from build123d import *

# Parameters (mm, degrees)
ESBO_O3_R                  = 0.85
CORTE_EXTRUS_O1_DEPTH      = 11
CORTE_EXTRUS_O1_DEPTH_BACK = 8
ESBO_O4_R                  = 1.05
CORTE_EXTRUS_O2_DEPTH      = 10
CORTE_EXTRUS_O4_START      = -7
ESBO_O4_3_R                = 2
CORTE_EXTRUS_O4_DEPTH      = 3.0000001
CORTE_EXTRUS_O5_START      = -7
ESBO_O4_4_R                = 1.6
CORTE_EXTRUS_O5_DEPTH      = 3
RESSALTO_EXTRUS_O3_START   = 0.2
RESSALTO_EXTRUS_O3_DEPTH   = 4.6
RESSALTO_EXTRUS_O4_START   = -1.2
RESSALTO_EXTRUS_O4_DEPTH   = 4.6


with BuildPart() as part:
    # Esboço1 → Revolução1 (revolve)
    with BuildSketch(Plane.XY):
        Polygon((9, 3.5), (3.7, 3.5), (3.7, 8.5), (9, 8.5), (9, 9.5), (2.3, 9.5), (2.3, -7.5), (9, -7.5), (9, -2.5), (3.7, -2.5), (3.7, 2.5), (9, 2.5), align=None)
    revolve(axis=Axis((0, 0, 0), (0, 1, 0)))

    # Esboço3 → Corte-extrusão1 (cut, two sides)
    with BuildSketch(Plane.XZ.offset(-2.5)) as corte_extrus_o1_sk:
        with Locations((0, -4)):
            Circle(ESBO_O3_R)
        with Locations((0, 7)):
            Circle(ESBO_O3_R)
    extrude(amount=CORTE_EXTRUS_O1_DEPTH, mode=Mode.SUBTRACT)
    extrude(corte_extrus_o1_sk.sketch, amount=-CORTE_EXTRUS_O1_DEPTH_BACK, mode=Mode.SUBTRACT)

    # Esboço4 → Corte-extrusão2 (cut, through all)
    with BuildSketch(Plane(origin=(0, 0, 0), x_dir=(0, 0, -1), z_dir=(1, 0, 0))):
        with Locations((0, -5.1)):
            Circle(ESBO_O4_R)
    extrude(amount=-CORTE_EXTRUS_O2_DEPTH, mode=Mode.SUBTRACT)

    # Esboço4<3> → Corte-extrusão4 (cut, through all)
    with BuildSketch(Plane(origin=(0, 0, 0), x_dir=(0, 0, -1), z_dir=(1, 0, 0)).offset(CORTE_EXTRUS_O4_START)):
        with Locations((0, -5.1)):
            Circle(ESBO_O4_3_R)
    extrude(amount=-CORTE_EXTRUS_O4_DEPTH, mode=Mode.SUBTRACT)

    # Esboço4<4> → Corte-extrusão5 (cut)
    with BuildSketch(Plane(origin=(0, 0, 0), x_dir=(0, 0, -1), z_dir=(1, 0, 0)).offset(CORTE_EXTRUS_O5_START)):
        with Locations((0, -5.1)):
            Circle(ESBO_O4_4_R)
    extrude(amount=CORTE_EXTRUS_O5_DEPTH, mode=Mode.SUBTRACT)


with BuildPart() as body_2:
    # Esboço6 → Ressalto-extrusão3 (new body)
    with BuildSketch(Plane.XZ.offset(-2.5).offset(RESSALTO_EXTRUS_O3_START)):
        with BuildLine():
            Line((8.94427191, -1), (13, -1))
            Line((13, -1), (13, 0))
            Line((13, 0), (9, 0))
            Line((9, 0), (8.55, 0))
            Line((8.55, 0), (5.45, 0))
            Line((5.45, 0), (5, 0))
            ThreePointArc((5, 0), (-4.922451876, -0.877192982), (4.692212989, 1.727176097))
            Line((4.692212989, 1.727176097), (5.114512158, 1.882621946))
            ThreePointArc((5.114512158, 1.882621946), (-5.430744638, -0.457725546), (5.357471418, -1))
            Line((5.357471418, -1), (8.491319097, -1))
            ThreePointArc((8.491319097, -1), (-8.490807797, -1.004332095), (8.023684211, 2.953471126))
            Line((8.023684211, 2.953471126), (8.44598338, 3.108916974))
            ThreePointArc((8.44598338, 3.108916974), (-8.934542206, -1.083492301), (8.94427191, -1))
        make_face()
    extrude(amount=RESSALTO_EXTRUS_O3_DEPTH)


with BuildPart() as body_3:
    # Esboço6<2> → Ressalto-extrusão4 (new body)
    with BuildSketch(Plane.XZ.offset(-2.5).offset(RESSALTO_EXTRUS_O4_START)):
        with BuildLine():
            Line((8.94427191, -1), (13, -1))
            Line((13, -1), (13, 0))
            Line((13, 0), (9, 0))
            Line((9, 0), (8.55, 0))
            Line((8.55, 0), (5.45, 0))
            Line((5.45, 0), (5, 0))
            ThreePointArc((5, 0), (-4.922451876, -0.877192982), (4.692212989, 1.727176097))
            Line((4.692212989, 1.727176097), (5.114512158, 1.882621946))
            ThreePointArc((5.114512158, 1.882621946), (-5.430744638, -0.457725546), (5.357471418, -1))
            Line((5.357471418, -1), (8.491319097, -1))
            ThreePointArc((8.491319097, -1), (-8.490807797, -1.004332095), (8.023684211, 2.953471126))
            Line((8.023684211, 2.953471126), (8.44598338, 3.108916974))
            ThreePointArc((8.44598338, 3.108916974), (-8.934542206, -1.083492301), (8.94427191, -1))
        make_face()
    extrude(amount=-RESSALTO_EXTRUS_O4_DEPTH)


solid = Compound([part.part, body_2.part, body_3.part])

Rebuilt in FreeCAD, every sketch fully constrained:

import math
import FreeCAD as App
import Part
import Sketcher

V = App.Vector
Q = App.Units.Quantity


def add_polygon(sketch, points):
    """Adds a closed chain of lines whose ends are joined by coincident constraints."""
    first, n = sketch.GeometryCount, len(points)
    for a, b in zip(points, points[1:] + points[:1]):
        sketch.addGeometry(Part.LineSegment(App.Vector(*a, 0), App.Vector(*b, 0)), False)
    for i in range(n):
        sketch.addConstraint(Sketcher.Constraint("Coincident", first + i, 2, first + (i + 1) % n, 1))

doc = App.newDocument("Part")
body = doc.addObject("PartDesign::Body", "Body")

sketch1 = body.newObject("Sketcher::SketchObject", "Sketch")
sketch1.AttachmentSupport = (doc.getObject("XY_Plane"), [""])
sketch1.MapMode = "FlatFace"
add_polygon(sketch1, [(9, 3.5), (3.7, 3.5), (3.7, 8.5), (9, 8.5), (9, 9.5), (2.3, 9.5), (2.3, -7.5), (9, -7.5), (9, -2.5), (3.7, -2.5), (3.7, 2.5), (9, 2.5)])
sketch1.addConstraint(Sketcher.Constraint("Horizontal", 0))
sketch1.addConstraint(Sketcher.Constraint("Vertical", 1))
sketch1.addConstraint(Sketcher.Constraint("Horizontal", 2))
sketch1.addConstraint(Sketcher.Constraint("Vertical", 3))
sketch1.addConstraint(Sketcher.Constraint("Horizontal", 4))
sketch1.addConstraint(Sketcher.Constraint("Vertical", 5))
sketch1.addConstraint(Sketcher.Constraint("Horizontal", 6))
sketch1.addConstraint(Sketcher.Constraint("Vertical", 7))
sketch1.addConstraint(Sketcher.Constraint("Horizontal", 8))
sketch1.addConstraint(Sketcher.Constraint("Vertical", 9))
sketch1.addConstraint(Sketcher.Constraint("Horizontal", 10))
sketch1.addConstraint(Sketcher.Constraint("Vertical", 11))
sketch1.addConstraint(Sketcher.Constraint("Symmetric", 7, 2, 10, 2, -1))
sketch1.addConstraint(Sketcher.Constraint("Vertical", 3, 2, 6, 2))
sketch1.addConstraint(Sketcher.Constraint("Vertical", 1, 2, 8, 2))
sketch1.addConstraint(Sketcher.Constraint("Equal", 1, 7))
sketch1.addConstraint(Sketcher.Constraint("Equal", 7, 9))
sketch1.addConstraint(Sketcher.Constraint("Equal", 3, 11))
sketch1.addConstraint(Sketcher.Constraint("DistanceY", 1, 1, 1, 2, Q("5 mm")))
sketch1.addConstraint(Sketcher.Constraint("DistanceY", 3, 1, 3, 2, Q("1 mm")))
sketch1.addConstraint(Sketcher.Constraint("DistanceX", 0, 2, 0, 1, Q("5.3 mm")))
sketch1.addConstraint(Sketcher.Constraint("DistanceX", 4, 2, 4, 1, Q("6.7 mm")))
sketch1.addConstraint(Sketcher.Constraint("DistanceX", -1, 1, 2, 2, Q("9 mm")))
revolution = body.newObject("PartDesign::Revolution", "Revolution")
revolution.Profile = sketch1
revolution.ReferenceAxis = (sketch1, ["V_Axis"])
revolution.Angle = 360

sketch2 = body.newObject("Sketcher::SketchObject", "Sketch001")
sketch2.AttachmentSupport = (doc.getObject("XZ_Plane"), [""])
sketch2.MapMode = "FlatFace"
sketch2.AttachmentOffset = App.Placement(V(0, 0, -2.5), App.Rotation())
sketch2.addGeometry(Part.Circle(V(0, -4, 0), V(0, 0, 1), 0.8), False)
sketch2.addGeometry(Part.Circle(V(0, 7, 0), V(0, 0, 1), 0.8), False)
sketch2.addConstraint(Sketcher.Constraint("Equal", 0, 1))
sketch2.addConstraint(Sketcher.Constraint("PointOnObject", 0, 3, -2))
sketch2.addConstraint(Sketcher.Constraint("PointOnObject", 1, 3, -2))
sketch2.addConstraint(Sketcher.Constraint("Diameter", 0, Q("1.7 mm")))
sketch2.addConstraint(Sketcher.Constraint("DistanceY", 0, 3, -1, 1, Q("4 mm")))
sketch2.addConstraint(Sketcher.Constraint("DistanceY", -1, 1, 1, 3, Q("7 mm")))
pocket1 = body.newObject("PartDesign::Pocket", "Pocket")
pocket1.Profile = sketch2
pocket1.Type = "ThroughAll"
pocket1.Midplane = True

sketch3 = body.newObject("Sketcher::SketchObject", "Sketch002")
sketch3.AttachmentSupport = (doc.getObject("YZ_Plane"), [""])
sketch3.MapMode = "FlatFace"
sketch3.addGeometry(Part.Circle(V(-5.1, 0, 0), V(0, 0, 1), 1.1), False)
sketch3.addConstraint(Sketcher.Constraint("PointOnObject", 0, 3, -1))
sketch3.addConstraint(Sketcher.Constraint("Diameter", 0, Q("2.1 mm")))
sketch3.addConstraint(Sketcher.Constraint("DistanceX", 0, 3, -1, 1, Q("5.1 mm")))
pocket2 = body.newObject("PartDesign::Pocket", "Pocket001")
pocket2.Profile = sketch3
pocket2.Type = "ThroughAll"

sketch4 = body.newObject("Sketcher::SketchObject", "Sketch003")
sketch4.AttachmentSupport = (doc.getObject("YZ_Plane"), [""])
sketch4.MapMode = "FlatFace"
sketch4.AttachmentOffset = App.Placement(V(0, 0, -7), App.Rotation())
sketch4.addGeometry(Part.Circle(V(-5.1, 0, 0), V(0, 0, 1), 2), False)
sketch4.addConstraint(Sketcher.Constraint("PointOnObject", 0, 3, -1))
sketch4.addConstraint(Sketcher.Constraint("Diameter", 0, Q("4 mm")))
sketch4.addConstraint(Sketcher.Constraint("DistanceX", 0, 3, -1, 1, Q("5.1 mm")))
pocket3 = body.newObject("PartDesign::Pocket", "Pocket002")
pocket3.Profile = sketch4
pocket3.Type = "ThroughAll"

sketch5 = body.newObject("Sketcher::SketchObject", "Sketch004")
sketch5.AttachmentSupport = (doc.getObject("YZ_Plane"), [""])
sketch5.MapMode = "FlatFace"
sketch5.AttachmentOffset = App.Placement(V(0, 0, -7), App.Rotation())
sketch5.addGeometry(Part.Circle(V(-5.1, 0, 0), V(0, 0, 1), 1.6), False)
sketch5.addConstraint(Sketcher.Constraint("PointOnObject", 0, 3, -1))
sketch5.addConstraint(Sketcher.Constraint("Diameter", 0, Q("3.2 mm")))
sketch5.addConstraint(Sketcher.Constraint("DistanceX", 0, 3, -1, 1, Q("5.1 mm")))
pocket4 = body.newObject("PartDesign::Pocket", "Pocket003")
pocket4.Profile = sketch5
pocket4.Length = 3
pocket4.Reversed = True
body2 = doc.addObject("PartDesign::Body", "Body001")

sketch6 = body2.newObject("Sketcher::SketchObject", "Sketch005")
sketch6.AttachmentSupport = (doc.getObject("XZ_Plane001"), [""])
sketch6.MapMode = "FlatFace"
sketch6.AttachmentOffset = App.Placement(V(0, 0, -2.3), App.Rotation())
sketch6.addGeometry(Part.LineSegment(V(8.94, -1, 0), V(13, -1, 0)), False)
sketch6.addGeometry(Part.LineSegment(V(13, -1, 0), V(13, 0, 0)), False)
sketch6.addGeometry(Part.LineSegment(V(13, 0, 0), V(5, 0, 0)), False)
sketch6.addGeometry(Part.ArcOfCircle(Part.Circle(V(0, 0, 0), V(0, 0, 1), 5), math.radians(20), math.radians(360)), False)
sketch6.addGeometry(Part.LineSegment(V(4.69, 1.73, 0), V(5.11, 1.88, 0)), False)
sketch6.addGeometry(Part.ArcOfCircle(Part.Circle(V(0, 0, 0), V(0, 0, 1), 5.45), math.radians(20), math.radians(349)), False)
sketch6.addGeometry(Part.LineSegment(V(5.36, -1, 0), V(8.49, -1, 0)), False)
sketch6.addGeometry(Part.ArcOfCircle(Part.Circle(V(0, 0, 0), V(0, 0, 1), 8.55), math.radians(20), math.radians(353)), False)
sketch6.addGeometry(Part.LineSegment(V(8.02, 2.95, 0), V(8.45, 3.11, 0)), False)
sketch6.addGeometry(Part.ArcOfCircle(Part.Circle(V(0, 0, 0), V(0, 0, 1), 9), math.radians(20), math.radians(354)), False)
sketch6.addConstraint(Sketcher.Constraint("Coincident", 0, 2, 1, 1))
sketch6.addConstraint(Sketcher.Constraint("Coincident", 1, 2, 2, 1))
sketch6.addConstraint(Sketcher.Constraint("Coincident", 2, 2, 3, 2))
sketch6.addConstraint(Sketcher.Constraint("Coincident", 3, 1, 4, 1))
sketch6.addConstraint(Sketcher.Constraint("Coincident", 4, 2, 5, 1))
sketch6.addConstraint(Sketcher.Constraint("Coincident", 5, 2, 6, 1))
sketch6.addConstraint(Sketcher.Constraint("Coincident", 6, 2, 7, 2))
sketch6.addConstraint(Sketcher.Constraint("Coincident", 7, 1, 8, 1))
sketch6.addConstraint(Sketcher.Constraint("Coincident", 8, 2, 9, 1))
sketch6.addConstraint(Sketcher.Constraint("Coincident", 9, 2, 0, 1))
sketch6.addConstraint(Sketcher.Constraint("Horizontal", 0))
sketch6.addConstraint(Sketcher.Constraint("Vertical", 1))
sketch6.addConstraint(Sketcher.Constraint("Horizontal", 2))
sketch6.addConstraint(Sketcher.Constraint("Horizontal", 6))
sketch6.addConstraint(Sketcher.Constraint("Coincident", 3, 3, -1, 1))
sketch6.addConstraint(Sketcher.Constraint("Coincident", 5, 3, -1, 1))
sketch6.addConstraint(Sketcher.Constraint("Coincident", 7, 3, -1, 1))
sketch6.addConstraint(Sketcher.Constraint("Coincident", 9, 3, -1, 1))
sketch6.addConstraint(Sketcher.Constraint("PointOnObject", 1, 2, -1))
sketch6.addConstraint(Sketcher.Constraint("Parallel", 4, 8))
sketch6.addConstraint(Sketcher.Constraint("Horizontal", 0, 2, 5, 2))
sketch6.addConstraint(Sketcher.Constraint("Equal", 4, 8))
sketch6.addConstraint(Sketcher.Constraint("Radius", 3, Q("5 mm")))
sketch6.addConstraint(Sketcher.Constraint("Radius", 9, Q("9 mm")))
sketch6.addConstraint(Sketcher.Constraint("DistanceX", 2, 2, 2, 1, Q("8 mm")))
sketch6.addConstraint(Sketcher.Constraint("DistanceY", 1, 1, 1, 2, Q("1 mm")))
sketch6.addConstraint(Sketcher.Constraint("Radius", 5, Q("5.45 mm")))
sketch6.addConstraint(Sketcher.Constraint("DistanceX", 3, 1, 4, 2, Q("0.422299 mm")))
sketch6.addConstraint(Sketcher.Constraint("DistanceY", -1, 1, 4, 2, Q("1.882622 mm")))
sketch6.addConstraint(Sketcher.Constraint("DistanceY", -1, 1, 7, 1, Q("2.953471 mm")))
pad1 = body2.newObject("PartDesign::Pad", "Pad")
pad1.Profile = sketch6
pad1.Length = 4.6
body3 = doc.addObject("PartDesign::Body", "Body002")

sketch7 = body3.newObject("Sketcher::SketchObject", "Sketch006")
sketch7.AttachmentSupport = (doc.getObject("XZ_Plane002"), [""])
sketch7.MapMode = "FlatFace"
sketch7.AttachmentOffset = App.Placement(V(0, 0, -3.7), App.Rotation())
sketch7.addGeometry(Part.LineSegment(V(8.94, -1, 0), V(13, -1, 0)), False)
sketch7.addGeometry(Part.LineSegment(V(13, -1, 0), V(13, 0, 0)), False)
sketch7.addGeometry(Part.LineSegment(V(13, 0, 0), V(5, 0, 0)), False)
sketch7.addGeometry(Part.ArcOfCircle(Part.Circle(V(0, 0, 0), V(0, 0, 1), 5), math.radians(20), math.radians(360)), False)
sketch7.addGeometry(Part.LineSegment(V(4.69, 1.73, 0), V(5.11, 1.88, 0)), False)
sketch7.addGeometry(Part.ArcOfCircle(Part.Circle(V(0, 0, 0), V(0, 0, 1), 5.45), math.radians(20), math.radians(349)), False)
sketch7.addGeometry(Part.LineSegment(V(5.36, -1, 0), V(8.49, -1, 0)), False)
sketch7.addGeometry(Part.ArcOfCircle(Part.Circle(V(0, 0, 0), V(0, 0, 1), 8.55), math.radians(20), math.radians(353)), False)
sketch7.addGeometry(Part.LineSegment(V(8.02, 2.95, 0), V(8.45, 3.11, 0)), False)
sketch7.addGeometry(Part.ArcOfCircle(Part.Circle(V(0, 0, 0), V(0, 0, 1), 9), math.radians(20), math.radians(354)), False)
sketch7.addConstraint(Sketcher.Constraint("Coincident", 0, 2, 1, 1))
sketch7.addConstraint(Sketcher.Constraint("Coincident", 1, 2, 2, 1))
sketch7.addConstraint(Sketcher.Constraint("Coincident", 2, 2, 3, 2))
sketch7.addConstraint(Sketcher.Constraint("Coincident", 3, 1, 4, 1))
sketch7.addConstraint(Sketcher.Constraint("Coincident", 4, 2, 5, 1))
sketch7.addConstraint(Sketcher.Constraint("Coincident", 5, 2, 6, 1))
sketch7.addConstraint(Sketcher.Constraint("Coincident", 6, 2, 7, 2))
sketch7.addConstraint(Sketcher.Constraint("Coincident", 7, 1, 8, 1))
sketch7.addConstraint(Sketcher.Constraint("Coincident", 8, 2, 9, 1))
sketch7.addConstraint(Sketcher.Constraint("Coincident", 9, 2, 0, 1))
sketch7.addConstraint(Sketcher.Constraint("Horizontal", 0))
sketch7.addConstraint(Sketcher.Constraint("Vertical", 1))
sketch7.addConstraint(Sketcher.Constraint("Horizontal", 2))
sketch7.addConstraint(Sketcher.Constraint("Horizontal", 6))
sketch7.addConstraint(Sketcher.Constraint("Coincident", 3, 3, -1, 1))
sketch7.addConstraint(Sketcher.Constraint("Coincident", 5, 3, -1, 1))
sketch7.addConstraint(Sketcher.Constraint("Coincident", 7, 3, -1, 1))
sketch7.addConstraint(Sketcher.Constraint("Coincident", 9, 3, -1, 1))
sketch7.addConstraint(Sketcher.Constraint("PointOnObject", 1, 2, -1))
sketch7.addConstraint(Sketcher.Constraint("Parallel", 4, 8))
sketch7.addConstraint(Sketcher.Constraint("Horizontal", 0, 2, 5, 2))
sketch7.addConstraint(Sketcher.Constraint("Equal", 4, 8))
sketch7.addConstraint(Sketcher.Constraint("Radius", 3, Q("5 mm")))
sketch7.addConstraint(Sketcher.Constraint("Radius", 9, Q("9 mm")))
sketch7.addConstraint(Sketcher.Constraint("DistanceX", 2, 2, 2, 1, Q("8 mm")))
sketch7.addConstraint(Sketcher.Constraint("DistanceY", 1, 1, 1, 2, Q("1 mm")))
sketch7.addConstraint(Sketcher.Constraint("Radius", 5, Q("5.45 mm")))
sketch7.addConstraint(Sketcher.Constraint("DistanceX", 3, 1, 4, 2, Q("0.422299 mm")))
sketch7.addConstraint(Sketcher.Constraint("DistanceY", -1, 1, 4, 2, Q("1.882622 mm")))
sketch7.addConstraint(Sketcher.Constraint("DistanceY", -1, 1, 7, 1, Q("2.953471 mm")))
pad2 = body3.newObject("PartDesign::Pad", "Pad001")
pad2.Profile = sketch7
pad2.Length = 4.6
pad2.Reversed = True

doc.recompute()
